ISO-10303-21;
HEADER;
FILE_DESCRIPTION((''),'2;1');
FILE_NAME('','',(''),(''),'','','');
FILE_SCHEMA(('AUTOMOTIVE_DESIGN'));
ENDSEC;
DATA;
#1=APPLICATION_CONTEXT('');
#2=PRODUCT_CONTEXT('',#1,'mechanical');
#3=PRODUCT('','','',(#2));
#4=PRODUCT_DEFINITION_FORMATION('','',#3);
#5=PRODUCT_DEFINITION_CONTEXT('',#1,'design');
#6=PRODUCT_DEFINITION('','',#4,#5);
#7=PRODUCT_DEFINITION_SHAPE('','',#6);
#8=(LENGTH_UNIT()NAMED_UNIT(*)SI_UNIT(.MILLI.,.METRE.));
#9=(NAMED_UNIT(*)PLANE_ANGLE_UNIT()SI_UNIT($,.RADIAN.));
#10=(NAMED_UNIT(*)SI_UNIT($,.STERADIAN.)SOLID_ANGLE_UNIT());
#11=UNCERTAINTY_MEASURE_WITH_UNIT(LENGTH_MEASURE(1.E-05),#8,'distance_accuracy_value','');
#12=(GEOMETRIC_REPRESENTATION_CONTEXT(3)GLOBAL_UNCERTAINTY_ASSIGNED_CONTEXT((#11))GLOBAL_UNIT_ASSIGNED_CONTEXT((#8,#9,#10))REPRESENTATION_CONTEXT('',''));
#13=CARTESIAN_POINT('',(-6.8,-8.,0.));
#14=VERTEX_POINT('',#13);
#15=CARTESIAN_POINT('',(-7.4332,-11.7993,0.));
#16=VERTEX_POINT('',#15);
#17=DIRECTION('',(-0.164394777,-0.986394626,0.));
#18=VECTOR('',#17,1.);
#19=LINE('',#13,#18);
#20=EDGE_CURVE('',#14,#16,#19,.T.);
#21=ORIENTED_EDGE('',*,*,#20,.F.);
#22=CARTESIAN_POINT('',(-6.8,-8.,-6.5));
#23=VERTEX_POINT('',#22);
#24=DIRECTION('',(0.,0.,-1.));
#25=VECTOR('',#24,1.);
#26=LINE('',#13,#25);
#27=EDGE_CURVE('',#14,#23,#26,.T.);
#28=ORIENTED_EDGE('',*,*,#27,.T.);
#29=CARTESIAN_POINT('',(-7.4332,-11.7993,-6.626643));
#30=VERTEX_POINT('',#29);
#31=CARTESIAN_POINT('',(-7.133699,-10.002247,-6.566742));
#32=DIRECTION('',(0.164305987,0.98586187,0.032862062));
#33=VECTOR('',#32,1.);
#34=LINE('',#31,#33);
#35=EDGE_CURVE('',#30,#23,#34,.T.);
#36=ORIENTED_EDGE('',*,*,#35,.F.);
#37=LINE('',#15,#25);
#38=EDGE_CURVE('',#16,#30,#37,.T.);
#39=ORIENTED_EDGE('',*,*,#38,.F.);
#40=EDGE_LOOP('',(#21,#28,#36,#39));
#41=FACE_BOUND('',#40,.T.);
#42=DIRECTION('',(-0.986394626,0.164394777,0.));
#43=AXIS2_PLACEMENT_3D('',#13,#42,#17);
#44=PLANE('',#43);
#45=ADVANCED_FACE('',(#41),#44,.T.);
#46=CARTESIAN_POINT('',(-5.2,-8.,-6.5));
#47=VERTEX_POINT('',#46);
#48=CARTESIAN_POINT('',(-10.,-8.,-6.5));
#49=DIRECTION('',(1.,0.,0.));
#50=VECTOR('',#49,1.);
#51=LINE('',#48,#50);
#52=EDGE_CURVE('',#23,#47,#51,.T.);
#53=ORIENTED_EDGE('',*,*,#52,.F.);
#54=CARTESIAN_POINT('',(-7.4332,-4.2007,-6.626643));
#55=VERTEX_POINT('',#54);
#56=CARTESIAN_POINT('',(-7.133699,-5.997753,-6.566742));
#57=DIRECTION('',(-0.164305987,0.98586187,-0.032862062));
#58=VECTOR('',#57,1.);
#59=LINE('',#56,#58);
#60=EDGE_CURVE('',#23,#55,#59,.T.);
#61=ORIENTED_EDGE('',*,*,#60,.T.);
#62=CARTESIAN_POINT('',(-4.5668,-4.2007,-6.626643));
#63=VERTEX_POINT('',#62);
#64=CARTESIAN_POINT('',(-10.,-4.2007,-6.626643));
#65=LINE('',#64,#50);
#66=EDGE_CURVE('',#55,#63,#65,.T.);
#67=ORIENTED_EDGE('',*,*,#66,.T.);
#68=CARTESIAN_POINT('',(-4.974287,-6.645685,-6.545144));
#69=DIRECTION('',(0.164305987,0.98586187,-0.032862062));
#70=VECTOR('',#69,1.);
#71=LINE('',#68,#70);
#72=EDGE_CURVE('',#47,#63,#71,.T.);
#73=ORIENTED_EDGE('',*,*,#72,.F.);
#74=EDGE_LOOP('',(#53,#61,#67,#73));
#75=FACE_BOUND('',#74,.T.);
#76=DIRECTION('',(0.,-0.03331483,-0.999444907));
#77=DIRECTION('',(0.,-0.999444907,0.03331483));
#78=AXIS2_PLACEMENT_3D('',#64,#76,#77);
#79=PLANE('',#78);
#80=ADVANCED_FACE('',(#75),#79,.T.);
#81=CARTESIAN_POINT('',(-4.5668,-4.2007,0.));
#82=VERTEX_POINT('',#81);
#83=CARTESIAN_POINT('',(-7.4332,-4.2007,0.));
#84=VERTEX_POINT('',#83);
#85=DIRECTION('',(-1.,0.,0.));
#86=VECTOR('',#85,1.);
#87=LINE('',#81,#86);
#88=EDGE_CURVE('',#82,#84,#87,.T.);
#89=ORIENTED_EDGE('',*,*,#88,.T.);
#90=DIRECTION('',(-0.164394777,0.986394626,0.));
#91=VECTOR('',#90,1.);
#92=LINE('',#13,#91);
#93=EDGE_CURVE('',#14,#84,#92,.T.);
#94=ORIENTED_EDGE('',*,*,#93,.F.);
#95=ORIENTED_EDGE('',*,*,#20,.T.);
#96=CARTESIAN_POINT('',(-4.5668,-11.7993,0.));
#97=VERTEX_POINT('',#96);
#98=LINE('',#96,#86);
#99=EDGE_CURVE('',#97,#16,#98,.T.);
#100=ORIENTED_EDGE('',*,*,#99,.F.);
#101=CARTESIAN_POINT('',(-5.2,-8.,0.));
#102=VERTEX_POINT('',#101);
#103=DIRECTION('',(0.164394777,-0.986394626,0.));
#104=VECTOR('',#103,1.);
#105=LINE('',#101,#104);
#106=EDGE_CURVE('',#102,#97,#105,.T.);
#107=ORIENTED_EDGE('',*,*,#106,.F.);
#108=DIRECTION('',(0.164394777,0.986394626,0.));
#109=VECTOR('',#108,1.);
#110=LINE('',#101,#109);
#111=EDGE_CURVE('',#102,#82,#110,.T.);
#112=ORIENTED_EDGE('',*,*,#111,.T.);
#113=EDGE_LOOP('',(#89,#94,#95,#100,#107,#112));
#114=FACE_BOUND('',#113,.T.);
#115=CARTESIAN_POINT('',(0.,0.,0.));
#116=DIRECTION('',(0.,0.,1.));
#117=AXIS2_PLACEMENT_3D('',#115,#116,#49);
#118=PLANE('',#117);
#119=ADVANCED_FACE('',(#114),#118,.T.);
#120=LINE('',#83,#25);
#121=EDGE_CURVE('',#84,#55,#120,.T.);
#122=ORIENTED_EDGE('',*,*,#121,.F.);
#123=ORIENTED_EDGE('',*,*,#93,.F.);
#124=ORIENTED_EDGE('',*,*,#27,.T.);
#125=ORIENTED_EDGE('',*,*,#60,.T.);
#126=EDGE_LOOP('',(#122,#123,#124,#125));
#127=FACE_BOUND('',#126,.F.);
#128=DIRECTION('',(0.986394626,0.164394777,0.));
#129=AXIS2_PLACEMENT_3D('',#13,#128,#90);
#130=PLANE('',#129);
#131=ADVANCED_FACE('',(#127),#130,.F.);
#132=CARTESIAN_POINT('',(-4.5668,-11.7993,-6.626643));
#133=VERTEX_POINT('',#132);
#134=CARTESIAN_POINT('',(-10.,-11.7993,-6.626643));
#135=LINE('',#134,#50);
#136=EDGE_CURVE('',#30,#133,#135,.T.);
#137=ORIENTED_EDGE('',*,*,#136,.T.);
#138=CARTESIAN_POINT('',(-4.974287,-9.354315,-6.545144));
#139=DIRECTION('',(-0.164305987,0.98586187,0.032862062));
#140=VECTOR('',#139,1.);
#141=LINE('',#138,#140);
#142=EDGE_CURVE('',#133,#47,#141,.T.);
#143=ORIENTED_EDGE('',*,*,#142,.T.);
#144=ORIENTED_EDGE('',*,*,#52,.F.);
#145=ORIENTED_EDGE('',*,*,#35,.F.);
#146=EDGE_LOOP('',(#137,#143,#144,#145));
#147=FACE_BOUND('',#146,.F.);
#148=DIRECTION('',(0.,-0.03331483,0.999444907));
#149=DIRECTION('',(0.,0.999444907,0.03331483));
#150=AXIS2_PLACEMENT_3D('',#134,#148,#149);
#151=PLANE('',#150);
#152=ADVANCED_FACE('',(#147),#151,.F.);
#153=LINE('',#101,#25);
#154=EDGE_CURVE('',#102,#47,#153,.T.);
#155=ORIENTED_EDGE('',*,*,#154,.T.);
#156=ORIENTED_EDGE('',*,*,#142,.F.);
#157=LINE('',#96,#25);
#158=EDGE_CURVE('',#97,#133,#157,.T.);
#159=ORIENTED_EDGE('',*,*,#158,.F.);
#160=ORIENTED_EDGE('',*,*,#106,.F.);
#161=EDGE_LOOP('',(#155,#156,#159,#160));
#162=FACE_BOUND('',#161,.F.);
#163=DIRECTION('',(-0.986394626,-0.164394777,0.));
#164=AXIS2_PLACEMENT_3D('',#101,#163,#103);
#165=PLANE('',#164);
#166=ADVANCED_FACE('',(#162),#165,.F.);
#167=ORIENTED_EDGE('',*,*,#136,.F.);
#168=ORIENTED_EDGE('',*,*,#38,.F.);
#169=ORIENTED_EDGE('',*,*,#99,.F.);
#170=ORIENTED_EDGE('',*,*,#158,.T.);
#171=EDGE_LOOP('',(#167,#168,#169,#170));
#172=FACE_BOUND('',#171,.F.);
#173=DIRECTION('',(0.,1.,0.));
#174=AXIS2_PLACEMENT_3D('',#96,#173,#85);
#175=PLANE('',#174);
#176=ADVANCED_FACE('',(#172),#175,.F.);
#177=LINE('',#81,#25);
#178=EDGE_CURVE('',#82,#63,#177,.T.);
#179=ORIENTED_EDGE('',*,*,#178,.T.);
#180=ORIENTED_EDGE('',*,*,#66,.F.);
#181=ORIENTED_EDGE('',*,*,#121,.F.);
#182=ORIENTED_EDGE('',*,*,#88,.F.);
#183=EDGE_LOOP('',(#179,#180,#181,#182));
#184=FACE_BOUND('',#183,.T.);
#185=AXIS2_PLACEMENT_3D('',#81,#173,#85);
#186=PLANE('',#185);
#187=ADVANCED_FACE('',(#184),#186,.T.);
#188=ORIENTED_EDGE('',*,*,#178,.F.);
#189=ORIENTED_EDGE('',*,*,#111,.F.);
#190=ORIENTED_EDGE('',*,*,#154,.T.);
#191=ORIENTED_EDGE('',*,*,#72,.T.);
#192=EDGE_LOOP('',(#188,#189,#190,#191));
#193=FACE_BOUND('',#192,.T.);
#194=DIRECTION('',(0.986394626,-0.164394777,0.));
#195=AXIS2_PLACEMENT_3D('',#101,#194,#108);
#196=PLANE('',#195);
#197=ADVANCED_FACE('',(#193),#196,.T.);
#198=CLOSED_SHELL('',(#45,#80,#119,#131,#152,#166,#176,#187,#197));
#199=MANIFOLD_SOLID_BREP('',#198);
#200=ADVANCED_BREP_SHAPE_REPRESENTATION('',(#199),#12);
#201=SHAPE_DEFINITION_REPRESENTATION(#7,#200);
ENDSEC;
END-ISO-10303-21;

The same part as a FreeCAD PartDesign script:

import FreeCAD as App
import Part
import Sketcher

V = App.Vector
Q = App.Units.Quantity


def add_polygon(sketch, points):
    """Adds a closed chain of lines whose ends are joined by coincident constraints."""
    first, n = sketch.GeometryCount, len(points)
    for a, b in zip(points, points[1:] + points[:1]):
        sketch.addGeometry(Part.LineSegment(App.Vector(*a, 0), App.Vector(*b, 0)), False)
    for i in range(n):
        sketch.addConstraint(Sketcher.Constraint("Coincident", first + i, 2, first + (i + 1) % n, 1))

doc = App.newDocument("Part")
body = doc.addObject("PartDesign::Body", "Body")

# Sketch on XY plane
sketch1 = doc.addObject("Sketcher::SketchObject", "Sketch")
body.addObject(sketch1)
sketch1.AttachmentSupport = (doc.XY_Plane, [""])
sketch1.MapMode = "FlatFace"
add_polygon(sketch1, [(-4.5668, -11.7993), (-5.2, -8), (-4.5668, -4.2007), (-7.4332, -4.2007), (-6.8, -8), (-7.4332, -11.7993)])  # lines 0-5
sketch1.addConstraint(Sketcher.Constraint("Horizontal", 2))
sketch1.addConstraint(Sketcher.Constraint("Horizontal", 5))
sketch1.addConstraint(Sketcher.Constraint("Parallel", 0, 3))
sketch1.addConstraint(Sketcher.Constraint("Parallel", 1, 4))
sketch1.addConstraint(Sketcher.Constraint("Horizontal", 0, 2, 3, 2))
sketch1.addConstraint(Sketcher.Constraint("Vertical", 2, 2, 4, 2))
sketch1.addConstraint(Sketcher.Constraint("Vertical", 1, 2, 5, 2))
sketch1.addConstraint(Sketcher.Constraint("DistanceY", 0, 2, -1, 1, 8.0))
sketch1.addConstraint(Sketcher.Constraint("DistanceX", 0, 2, -1, 1, 5.2))
sketch1.addConstraint(Sketcher.Constraint("DistanceX", 3, 2, -1, 1, 6.8))
sketch1.addConstraint(Sketcher.Constraint("DistanceX", 2, 2, 2, 1, 2.8664))
sketch1.addConstraint(Sketcher.Constraint("Distance", 0, 3.8517))
pad1 = doc.addObject("PartDesign::Pad", "Pad")
body.addObject(pad1)
pad1.Profile = sketch1
pad1.Length = 7
pad1.Reversed = True

# Sketch on YZ plane
sketch2 = doc.addObject("Sketcher::SketchObject", "Sketch001")
body.addObject(sketch2)
sketch2.AttachmentSupport = (doc.YZ_Plane, [""])
sketch2.MapMode = "FlatFace"
sketch2.AttachmentOffset = App.Placement(V(0, 0, -10), App.Rotation())
add_polygon(sketch2, [(-8, -6.5), (-4.2007, -6.626643), (-4.2007, -7), (-11.7993, -7), (-11.7993, -6.626643)])  # lines 0-4
sketch2.addConstraint(Sketcher.Constraint("Vertical", 1))
sketch2.addConstraint(Sketcher.Constraint("Horizontal", 2))
sketch2.addConstraint(Sketcher.Constraint("Vertical", 3))
sketch2.addConstraint(Sketcher.Constraint("Horizontal", 0, 2, 3, 2))
sketch2.addConstraint(Sketcher.Constraint("Equal", 0, 4))
sketch2.addConstraint(Sketcher.Constraint("DistanceY", 1, 2, -1, 1, 7.0))
sketch2.addConstraint(Sketcher.Constraint("DistanceX", 4, 2, -1, 1, 8.0))
sketch2.addConstraint(Sketcher.Constraint("DistanceY", 4, 2, -1, 1, 6.5))
sketch2.addConstraint(Sketcher.Constraint("Angle", 0, Q("-1.9092 deg")))
sketch2.addConstraint(Sketcher.Constraint("DistanceX", 2, 2, 2, 1, 7.5986))
pocket1 = doc.addObject("PartDesign::Pocket", "Pocket")
body.addObject(pocket1)
pocket1.Profile = sketch2
pocket1.Type = "ThroughAll"
pocket1.Reversed = True

doc.recompute()
